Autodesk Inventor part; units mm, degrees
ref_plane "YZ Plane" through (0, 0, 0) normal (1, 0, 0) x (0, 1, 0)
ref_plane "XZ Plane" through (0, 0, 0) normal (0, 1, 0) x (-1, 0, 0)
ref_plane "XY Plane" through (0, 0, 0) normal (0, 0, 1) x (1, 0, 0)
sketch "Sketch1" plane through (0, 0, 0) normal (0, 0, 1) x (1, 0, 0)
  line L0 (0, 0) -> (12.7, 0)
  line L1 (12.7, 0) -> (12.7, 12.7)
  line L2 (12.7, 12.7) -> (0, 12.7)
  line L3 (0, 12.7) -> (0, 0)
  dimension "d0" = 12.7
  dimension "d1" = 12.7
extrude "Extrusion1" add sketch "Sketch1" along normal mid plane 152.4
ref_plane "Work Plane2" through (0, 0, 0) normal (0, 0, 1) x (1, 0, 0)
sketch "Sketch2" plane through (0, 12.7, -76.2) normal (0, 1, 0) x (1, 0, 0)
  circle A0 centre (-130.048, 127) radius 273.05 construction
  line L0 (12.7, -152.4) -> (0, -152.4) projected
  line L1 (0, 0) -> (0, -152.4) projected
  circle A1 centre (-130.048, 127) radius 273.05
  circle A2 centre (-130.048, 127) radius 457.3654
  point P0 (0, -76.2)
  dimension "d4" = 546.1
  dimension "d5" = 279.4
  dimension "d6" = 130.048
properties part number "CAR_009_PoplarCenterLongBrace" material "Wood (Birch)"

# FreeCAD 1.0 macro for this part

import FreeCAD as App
import Part
import Sketcher
from FreeCAD import Vector
Q = App.Units.Quantity


def add_polygon(sketch, points):
    """Adds a closed chain of lines whose ends are joined by coincident constraints."""
    first, n = sketch.GeometryCount, len(points)
    for a, b in zip(points, points[1:] + points[:1]):
        sketch.addGeometry(Part.LineSegment(App.Vector(*a, 0), App.Vector(*b, 0)), False)
    for i in range(n):
        sketch.addConstraint(Sketcher.Constraint("Coincident", first + i, 2, first + (i + 1) % n, 1))

doc = App.newDocument("Part")
body = doc.addObject("PartDesign::Body", "Body")

sketch1 = body.newObject("Sketcher::SketchObject", "Sketch")
sketch1.AttachmentSupport = (doc.getObject("XY_Plane"), [""])
sketch1.MapMode = "FlatFace"
add_polygon(sketch1, [(0, 13), (0, 0), (13, 0), (13, 13)])
sketch1.addConstraint(Sketcher.Constraint("Vertical", 0))
sketch1.addConstraint(Sketcher.Constraint("Horizontal", 1))
sketch1.addConstraint(Sketcher.Constraint("Vertical", 2))
sketch1.addConstraint(Sketcher.Constraint("Horizontal", 3))
sketch1.addConstraint(Sketcher.Constraint("Coincident", 0, 2, -1, 1))
sketch1.addConstraint(Sketcher.Constraint("Equal", 3, 0))
sketch1.addConstraint(Sketcher.Constraint("DistanceX", 1, 1, 1, 2, Q("0.5 in")))
pad1 = body.newObject("PartDesign::Pad", "Pad")
pad1.Profile = sketch1
pad1.Length = Q("6 in")
pad1.Midplane = True

doc.recompute()
